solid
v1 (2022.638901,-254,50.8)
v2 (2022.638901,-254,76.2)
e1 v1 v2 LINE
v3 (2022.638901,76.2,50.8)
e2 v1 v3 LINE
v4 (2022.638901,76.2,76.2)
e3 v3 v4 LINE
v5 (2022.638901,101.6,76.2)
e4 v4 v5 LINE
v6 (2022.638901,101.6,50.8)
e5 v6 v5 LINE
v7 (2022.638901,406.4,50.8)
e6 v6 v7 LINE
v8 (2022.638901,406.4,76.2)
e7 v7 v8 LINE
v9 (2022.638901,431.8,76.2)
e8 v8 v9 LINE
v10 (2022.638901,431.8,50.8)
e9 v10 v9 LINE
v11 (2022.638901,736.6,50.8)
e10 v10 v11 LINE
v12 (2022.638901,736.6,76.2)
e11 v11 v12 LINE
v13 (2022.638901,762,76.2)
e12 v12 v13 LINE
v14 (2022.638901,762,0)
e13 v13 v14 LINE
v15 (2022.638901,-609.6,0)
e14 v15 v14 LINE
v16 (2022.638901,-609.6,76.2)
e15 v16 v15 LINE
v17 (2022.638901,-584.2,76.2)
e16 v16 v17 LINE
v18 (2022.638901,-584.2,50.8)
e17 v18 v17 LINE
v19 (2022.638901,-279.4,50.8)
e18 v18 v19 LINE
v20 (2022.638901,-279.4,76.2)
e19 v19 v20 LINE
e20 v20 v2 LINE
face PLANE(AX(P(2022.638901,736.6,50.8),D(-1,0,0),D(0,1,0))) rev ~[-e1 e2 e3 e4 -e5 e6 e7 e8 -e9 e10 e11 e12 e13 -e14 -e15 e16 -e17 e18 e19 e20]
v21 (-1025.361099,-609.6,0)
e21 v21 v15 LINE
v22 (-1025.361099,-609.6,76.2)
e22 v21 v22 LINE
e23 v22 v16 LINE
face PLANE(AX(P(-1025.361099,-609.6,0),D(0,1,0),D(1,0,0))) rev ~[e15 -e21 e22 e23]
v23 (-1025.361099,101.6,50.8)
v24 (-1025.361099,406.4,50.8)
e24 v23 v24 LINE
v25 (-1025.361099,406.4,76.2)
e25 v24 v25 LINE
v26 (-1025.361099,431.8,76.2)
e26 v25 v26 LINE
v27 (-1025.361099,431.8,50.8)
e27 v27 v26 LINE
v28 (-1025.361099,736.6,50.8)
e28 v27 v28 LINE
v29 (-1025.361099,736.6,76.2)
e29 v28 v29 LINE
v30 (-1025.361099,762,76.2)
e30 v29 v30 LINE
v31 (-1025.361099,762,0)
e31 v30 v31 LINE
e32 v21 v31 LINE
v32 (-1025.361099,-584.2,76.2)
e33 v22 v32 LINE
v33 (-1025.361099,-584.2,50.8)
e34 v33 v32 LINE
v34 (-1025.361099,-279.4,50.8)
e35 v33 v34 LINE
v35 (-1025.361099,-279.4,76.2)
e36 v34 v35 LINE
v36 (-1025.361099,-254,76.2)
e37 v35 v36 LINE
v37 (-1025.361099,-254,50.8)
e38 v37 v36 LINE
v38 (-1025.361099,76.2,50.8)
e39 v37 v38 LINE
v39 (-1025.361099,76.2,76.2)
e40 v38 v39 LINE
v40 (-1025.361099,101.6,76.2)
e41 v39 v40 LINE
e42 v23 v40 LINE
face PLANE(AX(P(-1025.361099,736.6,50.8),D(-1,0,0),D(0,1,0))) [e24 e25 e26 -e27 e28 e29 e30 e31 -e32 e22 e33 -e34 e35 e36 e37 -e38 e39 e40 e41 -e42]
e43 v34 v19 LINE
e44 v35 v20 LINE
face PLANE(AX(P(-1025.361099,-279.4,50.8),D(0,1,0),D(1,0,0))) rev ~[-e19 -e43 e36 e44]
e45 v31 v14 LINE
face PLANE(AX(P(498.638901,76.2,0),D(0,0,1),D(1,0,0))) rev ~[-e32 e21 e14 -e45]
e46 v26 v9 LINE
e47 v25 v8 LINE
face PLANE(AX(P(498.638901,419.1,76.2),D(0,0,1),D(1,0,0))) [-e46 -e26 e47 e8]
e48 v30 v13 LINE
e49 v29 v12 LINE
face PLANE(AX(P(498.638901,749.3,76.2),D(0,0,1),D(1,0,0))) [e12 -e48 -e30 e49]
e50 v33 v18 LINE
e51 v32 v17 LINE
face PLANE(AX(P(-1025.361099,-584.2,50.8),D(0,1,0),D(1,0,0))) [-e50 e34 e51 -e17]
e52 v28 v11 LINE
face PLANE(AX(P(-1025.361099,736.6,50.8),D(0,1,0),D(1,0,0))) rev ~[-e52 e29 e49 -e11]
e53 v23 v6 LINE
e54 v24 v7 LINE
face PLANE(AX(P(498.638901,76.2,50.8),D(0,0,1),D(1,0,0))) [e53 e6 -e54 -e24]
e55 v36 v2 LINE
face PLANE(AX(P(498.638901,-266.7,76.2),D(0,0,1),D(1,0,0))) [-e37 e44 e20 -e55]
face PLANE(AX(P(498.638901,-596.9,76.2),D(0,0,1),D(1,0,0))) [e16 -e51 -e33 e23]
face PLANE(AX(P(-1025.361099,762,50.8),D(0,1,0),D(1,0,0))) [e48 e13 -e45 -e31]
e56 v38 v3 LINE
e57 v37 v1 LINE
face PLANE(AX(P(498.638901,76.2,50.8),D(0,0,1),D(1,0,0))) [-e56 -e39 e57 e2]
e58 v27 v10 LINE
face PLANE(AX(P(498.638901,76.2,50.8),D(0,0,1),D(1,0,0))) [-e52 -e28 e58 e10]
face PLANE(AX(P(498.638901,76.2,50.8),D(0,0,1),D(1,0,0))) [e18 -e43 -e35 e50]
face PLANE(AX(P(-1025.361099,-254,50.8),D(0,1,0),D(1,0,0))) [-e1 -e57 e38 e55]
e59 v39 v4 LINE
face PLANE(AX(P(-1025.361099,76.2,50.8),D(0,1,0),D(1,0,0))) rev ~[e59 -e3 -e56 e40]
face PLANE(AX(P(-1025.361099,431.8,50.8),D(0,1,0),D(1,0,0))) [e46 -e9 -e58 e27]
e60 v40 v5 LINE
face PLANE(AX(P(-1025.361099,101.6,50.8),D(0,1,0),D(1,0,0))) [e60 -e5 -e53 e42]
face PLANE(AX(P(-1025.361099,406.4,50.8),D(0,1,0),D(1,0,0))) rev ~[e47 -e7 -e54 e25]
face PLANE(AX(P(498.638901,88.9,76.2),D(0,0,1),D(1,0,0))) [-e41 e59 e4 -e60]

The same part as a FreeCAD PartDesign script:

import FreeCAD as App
import Part
import Sketcher
from FreeCAD import Vector
Q = App.Units.Quantity


def add_polygon(sketch, points):
    """Adds a closed chain of lines whose ends are joined by coincident constraints."""
    first, n = sketch.GeometryCount, len(points)
    for a, b in zip(points, points[1:] + points[:1]):
        sketch.addGeometry(Part.LineSegment(App.Vector(*a, 0), App.Vector(*b, 0)), False)
    for i in range(n):
        sketch.addConstraint(Sketcher.Constraint("Coincident", first + i, 2, first + (i + 1) % n, 1))

doc = App.newDocument("Part")
body = doc.addObject("PartDesign::Body", "Body")

sketch1 = body.newObject("Sketcher::SketchObject", "Sketch")
sketch1.AttachmentSupport = (doc.getObject("XY_Plane"), [""])
sketch1.MapMode = "FlatFace"
add_polygon(sketch1, [(-1025, 762), (-1025, -610), (2023, -610), (2023, 762)])
sketch1.addConstraint(Sketcher.Constraint("Vertical", 0))
sketch1.addConstraint(Sketcher.Constraint("Horizontal", 1))
sketch1.addConstraint(Sketcher.Constraint("Vertical", 2))
sketch1.addConstraint(Sketcher.Constraint("Horizontal", 3))
sketch1.addConstraint(Sketcher.Constraint("DistanceX", 1, 1, 1, 2, Q("120 in")))
sketch1.addConstraint(Sketcher.Constraint("DistanceY", 0, 2, 0, 1, Q("54 in")))
sketch1.addConstraint(Sketcher.Constraint("DistanceY", 0, 2, -1, 1, Q("24 in")))
sketch1.addConstraint(Sketcher.Constraint("DistanceX", 0, 2, -1, 1, Q("1025.361099 mm")))
pad1 = body.newObject("PartDesign::Pad", "Pad")
pad1.Profile = sketch1
pad1.Length = Q("2 in")

sketch2 = body.newObject("Sketcher::SketchObject", "Sketch001")
sketch2.AttachmentSupport = (doc.getObject("XY_Plane"), [""])
sketch2.MapMode = "FlatFace"
sketch2.AttachmentOffset = App.Placement(Vector(0, 0, 2 * 25.4), App.Rotation())
add_polygon(sketch2, [(-1025, 762), (-1025, 737), (2023, 737), (2023, 762)])
add_polygon(sketch2, [(-1025, 432), (-1025, 406), (2023, 406), (2023, 432)])
add_polygon(sketch2, [(-1025, 102), (-1025, 76), (2023, 76), (2023, 102)])
add_polygon(sketch2, [(-1025, -254), (-1025, -279), (2023, -279), (2023, -254)])
add_polygon(sketch2, [(-1025, -584), (-1025, -610), (2023, -610), (2023, -584)])
sketch2.addConstraint(Sketcher.Constraint("Vertical", 0))
sketch2.addConstraint(Sketcher.Constraint("Horizontal", 1))
sketch2.addConstraint(Sketcher.Constraint("Vertical", 2))
sketch2.addConstraint(Sketcher.Constraint("Horizontal", 3))
sketch2.addConstraint(Sketcher.Constraint("Vertical", 4))
sketch2.addConstraint(Sketcher.Constraint("Horizontal", 5))
sketch2.addConstraint(Sketcher.Constraint("Vertical", 6))
sketch2.addConstraint(Sketcher.Constraint("Horizontal", 7))
sketch2.addConstraint(Sketcher.Constraint("Vertical", 8))
sketch2.addConstraint(Sketcher.Constraint("Horizontal", 9))
sketch2.addConstraint(Sketcher.Constraint("Vertical", 10))
sketch2.addConstraint(Sketcher.Constraint("Horizontal", 11))
sketch2.addConstraint(Sketcher.Constraint("Vertical", 12))
sketch2.addConstraint(Sketcher.Constraint("Horizontal", 13))
sketch2.addConstraint(Sketcher.Constraint("Vertical", 14))
sketch2.addConstraint(Sketcher.Constraint("Horizontal", 15))
sketch2.addConstraint(Sketcher.Constraint("Vertical", 16))
sketch2.addConstraint(Sketcher.Constraint("Horizontal", 17))
sketch2.addConstraint(Sketcher.Constraint("Vertical", 18))
sketch2.addConstraint(Sketcher.Constraint("Horizontal", 19))
sketch2.addConstraint(Sketcher.Constraint("Vertical", 3, 2, 4, 2))
sketch2.addConstraint(Sketcher.Constraint("Vertical", 2, 2, 5, 2))
sketch2.addConstraint(Sketcher.Constraint("Vertical", 7, 2, 8, 2))
sketch2.addConstraint(Sketcher.Constraint("Vertical", 6, 2, 9, 2))
sketch2.addConstraint(Sketcher.Constraint("Vertical", 11, 2, 12, 2))
sketch2.addConstraint(Sketcher.Constraint("Vertical", 10, 2, 13, 2))
sketch2.addConstraint(Sketcher.Constraint("Vertical", 15, 2, 16, 2))
sketch2.addConstraint(Sketcher.Constraint("Vertical", 14, 2, 17, 2))
sketch2.addConstraint(Sketcher.Constraint("Equal", 2, 4))
sketch2.addConstraint(Sketcher.Constraint("Equal", 6, 8))
sketch2.addConstraint(Sketcher.Constraint("Equal", 10, 12))
sketch2.addConstraint(Sketcher.Constraint("Equal", 14, 16))
sketch2.addConstraint(Sketcher.Constraint("DistanceX", 1, 1, 1, 2, Q("120 in")))
sketch2.addConstraint(Sketcher.Constraint("DistanceY", 0, 2, 0, 1, Q("1 in")))
sketch2.addConstraint(Sketcher.Constraint("DistanceY", -1, 1, 0, 2, Q("29 in")))
sketch2.addConstraint(Sketcher.Constraint("DistanceY", -1, 1, 4, 2, Q("16 in")))
sketch2.addConstraint(Sketcher.Constraint("DistanceY", -1, 1, 8, 2, Q("3 in")))
sketch2.addConstraint(Sketcher.Constraint("DistanceY", 12, 2, -1, 1, Q("11 in")))
sketch2.addConstraint(Sketcher.Constraint("DistanceY", 16, 2, -1, 1, Q("24 in")))
sketch2.addConstraint(Sketcher.Constraint("DistanceX", 0, 2, -1, 1, Q("1025.361099 mm")))
pad2 = body.newObject("PartDesign::Pad", "Pad001")
pad2.Profile = sketch2
pad2.Length = Q("1 in")

doc.recompute()
